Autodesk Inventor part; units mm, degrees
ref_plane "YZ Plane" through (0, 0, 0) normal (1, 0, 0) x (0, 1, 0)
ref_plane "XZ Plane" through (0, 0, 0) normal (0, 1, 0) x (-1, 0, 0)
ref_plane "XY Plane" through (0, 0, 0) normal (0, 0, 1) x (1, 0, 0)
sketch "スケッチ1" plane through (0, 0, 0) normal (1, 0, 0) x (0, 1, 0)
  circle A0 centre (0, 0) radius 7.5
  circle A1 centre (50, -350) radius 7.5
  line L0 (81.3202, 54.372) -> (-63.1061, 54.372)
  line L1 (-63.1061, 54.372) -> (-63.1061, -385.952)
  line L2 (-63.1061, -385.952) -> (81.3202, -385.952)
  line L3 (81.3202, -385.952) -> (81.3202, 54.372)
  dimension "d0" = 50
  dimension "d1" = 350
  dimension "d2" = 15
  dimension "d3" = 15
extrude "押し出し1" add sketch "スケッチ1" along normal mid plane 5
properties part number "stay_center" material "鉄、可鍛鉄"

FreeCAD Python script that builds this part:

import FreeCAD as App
import Part
import Sketcher
from FreeCAD import Vector

doc = App.newDocument("Part")
body = doc.addObject("PartDesign::Body", "Body")

sketch1 = body.newObject("Sketcher::SketchObject", "Sketch")
sketch1.AttachmentSupport = (doc.getObject("YZ_Plane"), [""])
sketch1.MapMode = "FlatFace"
sketch1.addGeometry(Part.LineSegment(Vector(81.3202, -385.952, 0), Vector(81.3202, 54.372, 0)), False)
sketch1.addGeometry(Part.LineSegment(Vector(81.3202, 54.372, 0), Vector(-63.1061, 54.372, 0)), False)
sketch1.addGeometry(Part.LineSegment(Vector(-63.1061, 54.372, 0), Vector(-63.1061, -385.952, 0)), False)
sketch1.addGeometry(Part.LineSegment(Vector(-63.1061, -385.952, 0), Vector(81.3202, -385.952, 0)), False)
sketch1.addGeometry(Part.Circle(Vector(50, -350, 0), Vector(0, 0, 1), 7.5), False)
sketch1.addGeometry(Part.Circle(Vector(0, 0, 0), Vector(0, 0, 1), 7.5), False)
sketch1.addConstraint(Sketcher.Constraint("Coincident", 0, 2, 1, 1))
sketch1.addConstraint(Sketcher.Constraint("Coincident", 1, 2, 2, 1))
sketch1.addConstraint(Sketcher.Constraint("Coincident", 2, 2, 3, 1))
sketch1.addConstraint(Sketcher.Constraint("Coincident", 3, 2, 0, 1))
sketch1.addConstraint(Sketcher.Constraint("Vertical", 0))
sketch1.addConstraint(Sketcher.Constraint("Horizontal", 1))
sketch1.addConstraint(Sketcher.Constraint("Vertical", 2))
sketch1.addConstraint(Sketcher.Constraint("Horizontal", 3))
sketch1.addConstraint(Sketcher.Constraint("Coincident", 5, 3, -1, 1))
sketch1.addConstraint(Sketcher.Constraint("Equal", 4, 5))
sketch1.addConstraint(Sketcher.Constraint("Diameter", 4, 15.0))
sketch1.addConstraint(Sketcher.Constraint("DistanceX", -1, 1, 4, 3, 50.0))
sketch1.addConstraint(Sketcher.Constraint("DistanceY", 4, 3, -1, 1, 350.0))
sketch1.addConstraint(Sketcher.Constraint("DistanceY", 0, 1, 0, 2, 440.324))
sketch1.addConstraint(Sketcher.Constraint("DistanceX", 1, 2, 1, 1, 144.4263))
sketch1.addConstraint(Sketcher.Constraint("DistanceY", -1, 1, 0, 2, 54.372))
sketch1.addConstraint(Sketcher.Constraint("DistanceX", 1, 2, -1, 1, 63.106))
pad1 = body.newObject("PartDesign::Pad", "Pad")
pad1.Profile = sketch1
pad1.Length = 5
pad1.Midplane = True

doc.recompute()
